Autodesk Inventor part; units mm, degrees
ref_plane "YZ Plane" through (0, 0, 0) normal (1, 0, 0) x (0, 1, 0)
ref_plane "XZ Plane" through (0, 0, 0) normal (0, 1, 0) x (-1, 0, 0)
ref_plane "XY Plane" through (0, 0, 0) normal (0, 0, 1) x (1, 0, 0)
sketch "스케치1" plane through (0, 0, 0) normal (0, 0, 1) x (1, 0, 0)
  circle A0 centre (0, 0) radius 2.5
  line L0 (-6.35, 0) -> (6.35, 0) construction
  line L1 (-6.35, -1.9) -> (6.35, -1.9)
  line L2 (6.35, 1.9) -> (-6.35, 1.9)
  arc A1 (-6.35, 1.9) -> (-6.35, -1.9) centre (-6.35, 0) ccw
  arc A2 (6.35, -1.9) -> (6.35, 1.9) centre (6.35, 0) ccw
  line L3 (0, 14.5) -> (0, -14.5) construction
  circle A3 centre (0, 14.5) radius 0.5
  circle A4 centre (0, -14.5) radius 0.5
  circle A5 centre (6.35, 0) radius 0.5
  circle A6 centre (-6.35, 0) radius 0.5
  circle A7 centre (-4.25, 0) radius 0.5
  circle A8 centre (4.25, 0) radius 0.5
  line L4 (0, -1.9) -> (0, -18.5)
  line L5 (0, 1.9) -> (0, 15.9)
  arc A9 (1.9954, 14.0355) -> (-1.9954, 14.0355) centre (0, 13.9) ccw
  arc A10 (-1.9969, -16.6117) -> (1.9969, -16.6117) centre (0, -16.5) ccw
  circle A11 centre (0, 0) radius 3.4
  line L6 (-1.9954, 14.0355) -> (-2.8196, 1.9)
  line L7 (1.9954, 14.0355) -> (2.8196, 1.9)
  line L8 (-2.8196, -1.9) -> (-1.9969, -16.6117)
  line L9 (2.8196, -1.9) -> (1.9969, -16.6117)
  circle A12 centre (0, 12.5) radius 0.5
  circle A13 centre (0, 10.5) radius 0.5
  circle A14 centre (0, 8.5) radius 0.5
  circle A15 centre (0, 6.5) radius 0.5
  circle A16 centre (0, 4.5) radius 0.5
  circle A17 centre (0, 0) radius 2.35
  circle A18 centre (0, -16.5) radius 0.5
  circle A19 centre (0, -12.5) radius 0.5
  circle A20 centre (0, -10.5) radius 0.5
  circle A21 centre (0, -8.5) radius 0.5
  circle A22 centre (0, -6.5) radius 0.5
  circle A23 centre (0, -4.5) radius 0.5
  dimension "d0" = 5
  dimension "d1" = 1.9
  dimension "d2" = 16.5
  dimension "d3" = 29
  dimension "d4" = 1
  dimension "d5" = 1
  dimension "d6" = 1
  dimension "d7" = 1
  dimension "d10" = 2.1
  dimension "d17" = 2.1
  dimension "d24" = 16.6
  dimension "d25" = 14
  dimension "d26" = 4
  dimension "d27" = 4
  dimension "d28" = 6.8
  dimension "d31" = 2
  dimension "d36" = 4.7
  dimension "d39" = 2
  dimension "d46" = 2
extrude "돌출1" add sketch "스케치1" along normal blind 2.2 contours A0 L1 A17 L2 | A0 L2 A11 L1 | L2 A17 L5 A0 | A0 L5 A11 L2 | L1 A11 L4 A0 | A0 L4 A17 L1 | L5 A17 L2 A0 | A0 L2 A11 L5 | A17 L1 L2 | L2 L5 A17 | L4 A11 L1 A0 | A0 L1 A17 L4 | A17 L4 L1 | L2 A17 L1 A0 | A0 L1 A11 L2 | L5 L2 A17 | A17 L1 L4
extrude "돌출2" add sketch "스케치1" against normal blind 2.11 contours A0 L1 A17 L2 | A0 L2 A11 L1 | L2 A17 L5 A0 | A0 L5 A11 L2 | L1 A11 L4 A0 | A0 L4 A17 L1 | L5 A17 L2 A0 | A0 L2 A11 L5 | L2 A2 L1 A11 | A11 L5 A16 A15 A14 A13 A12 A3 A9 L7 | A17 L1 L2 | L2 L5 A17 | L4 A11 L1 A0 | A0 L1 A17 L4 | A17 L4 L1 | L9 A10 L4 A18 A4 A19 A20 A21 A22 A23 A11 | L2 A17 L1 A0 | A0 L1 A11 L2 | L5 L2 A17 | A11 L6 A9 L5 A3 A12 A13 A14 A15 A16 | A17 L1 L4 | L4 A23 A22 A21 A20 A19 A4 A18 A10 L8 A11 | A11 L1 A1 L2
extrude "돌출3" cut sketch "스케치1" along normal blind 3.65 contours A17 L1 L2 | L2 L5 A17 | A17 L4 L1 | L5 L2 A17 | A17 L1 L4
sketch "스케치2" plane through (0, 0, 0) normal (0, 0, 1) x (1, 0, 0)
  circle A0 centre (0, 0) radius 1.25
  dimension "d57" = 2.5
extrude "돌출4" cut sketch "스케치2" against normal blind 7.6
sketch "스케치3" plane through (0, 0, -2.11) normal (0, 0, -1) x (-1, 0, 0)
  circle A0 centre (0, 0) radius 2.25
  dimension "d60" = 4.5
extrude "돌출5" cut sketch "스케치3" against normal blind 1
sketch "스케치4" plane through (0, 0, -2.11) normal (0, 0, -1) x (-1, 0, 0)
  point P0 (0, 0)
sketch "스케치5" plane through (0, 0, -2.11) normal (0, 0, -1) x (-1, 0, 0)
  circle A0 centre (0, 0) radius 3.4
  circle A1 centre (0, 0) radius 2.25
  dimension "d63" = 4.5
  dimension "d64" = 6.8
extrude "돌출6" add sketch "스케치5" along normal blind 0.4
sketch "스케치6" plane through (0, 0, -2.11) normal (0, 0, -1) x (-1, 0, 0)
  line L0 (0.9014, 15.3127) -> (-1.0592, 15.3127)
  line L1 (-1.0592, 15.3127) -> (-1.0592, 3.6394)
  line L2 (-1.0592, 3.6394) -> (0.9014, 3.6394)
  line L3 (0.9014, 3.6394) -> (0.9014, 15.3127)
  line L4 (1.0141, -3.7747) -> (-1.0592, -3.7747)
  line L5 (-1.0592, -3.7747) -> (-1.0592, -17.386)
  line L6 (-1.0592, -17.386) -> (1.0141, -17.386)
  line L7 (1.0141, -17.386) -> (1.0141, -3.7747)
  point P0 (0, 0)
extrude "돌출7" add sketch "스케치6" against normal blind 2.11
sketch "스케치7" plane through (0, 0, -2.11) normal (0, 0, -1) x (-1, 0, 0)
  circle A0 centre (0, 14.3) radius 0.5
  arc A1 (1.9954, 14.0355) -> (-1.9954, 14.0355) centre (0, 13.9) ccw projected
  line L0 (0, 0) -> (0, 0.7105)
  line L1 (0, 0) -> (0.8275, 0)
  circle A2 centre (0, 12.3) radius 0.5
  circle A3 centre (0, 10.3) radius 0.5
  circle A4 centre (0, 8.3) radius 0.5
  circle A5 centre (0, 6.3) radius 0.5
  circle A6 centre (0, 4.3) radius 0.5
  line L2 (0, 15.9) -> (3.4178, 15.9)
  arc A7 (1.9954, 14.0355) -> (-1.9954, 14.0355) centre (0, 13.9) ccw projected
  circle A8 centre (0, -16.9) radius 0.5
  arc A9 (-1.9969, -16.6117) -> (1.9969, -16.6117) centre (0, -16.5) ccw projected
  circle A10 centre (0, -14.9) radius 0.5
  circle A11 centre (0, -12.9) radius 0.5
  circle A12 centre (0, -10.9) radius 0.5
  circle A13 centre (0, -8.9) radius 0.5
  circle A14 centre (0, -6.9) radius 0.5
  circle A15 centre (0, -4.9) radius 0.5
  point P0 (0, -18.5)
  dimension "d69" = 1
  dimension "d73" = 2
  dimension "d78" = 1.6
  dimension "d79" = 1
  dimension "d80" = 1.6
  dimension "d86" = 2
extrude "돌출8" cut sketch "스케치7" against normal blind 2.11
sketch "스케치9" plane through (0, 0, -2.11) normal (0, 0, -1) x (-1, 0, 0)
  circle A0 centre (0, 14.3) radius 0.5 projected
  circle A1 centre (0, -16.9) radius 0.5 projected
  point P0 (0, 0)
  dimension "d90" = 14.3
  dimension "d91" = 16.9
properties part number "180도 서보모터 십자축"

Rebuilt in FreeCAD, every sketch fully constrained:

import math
import FreeCAD as App
import Part
import Sketcher
Q = App.Units.Quantity

doc = App.newDocument("Part")
params = doc.addObject("Spreadsheet::Sheet", "Params")
for row, (alias, value) in enumerate([
    ("sketch1_diameter", "6.8 mm"),
    ("pad1_length", "2.2 mm"),
    ("sketch2_diameter", "1 mm"),
    ("sketch2_radius", "2 mm"),
    ("sketch2_radius2", "1.9 mm"),
    ("pad2_length", "2.11 mm"),
    ("sketch3_diameter", "4.7 mm"),
    ("pocket1_length", "3.65 mm"),
    ("sketch4_diameter", "2.5 mm"),
    ("pocket2_length", "7.6 mm"),
    ("sketch5_diameter", "4.5 mm"),
    ("pocket3_length", "1 mm"),
    ("sketch6_diameter", "6.8 mm"),
    ("sketch6_diameter2", "4.5 mm"),
    ("pad3_length", "0.4 mm"),
    ("pad4_length", "2.11 mm"),
    ("sketch8_diameter", "1 mm"),
    ("pocket4_length", "2.11 mm"),
], start=1):
    params.set(f"A{row}", alias)
    params.set(f"B{row}", "=" + value)
    params.setAlias(f"B{row}", alias)

body = doc.addObject("PartDesign::Body", "Body")

# Sketch on XY plane
sketch1 = body.newObject("Sketcher::SketchObject", "Sketch")
sketch1.AttachmentSupport = (doc.getObject("XY_Plane"), [""])
sketch1.MapMode = "FlatFace"
sketch1.addGeometry(Part.Circle(App.Vector(0, 0, 0), App.Vector(0, 0, 1), 3.4), False)
sketch1.addConstraint([
    Sketcher.Constraint("Coincident", 0, 3, -1, 1),
    Sketcher.Constraint("Diameter", 0, Q("6.8 mm")),
])
sketch1.setExpression("Constraints[1]", "Params.sketch1_diameter")
pad1 = body.newObject("PartDesign::Pad", "Pad")
pad1.Profile = sketch1
pad1.setExpression("Length", "Params.pad1_length")

# Sketch on XY plane
sketch2 = body.newObject("Sketcher::SketchObject", "Sketch001")
sketch2.AttachmentSupport = (doc.getObject("XY_Plane"), [""])
sketch2.MapMode = "FlatFace"
sketch2.addGeometry([
    Part.LineSegment(App.Vector(6.35, 1.9, 0), App.Vector(2.8196, 1.9, 0)),  # 0
    Part.LineSegment(App.Vector(2.8196, 1.9, 0), App.Vector(1.9954, 14.0355, 0)),  # 1
    Part.ArcOfCircle(Part.Circle(App.Vector(0, 13.9, 0), App.Vector(0, 0, 1), 1.999995), math.radians(3.884774), math.radians(176.115226)),  # 2
    Part.LineSegment(App.Vector(-1.9954, 14.0355, 0), App.Vector(-2.8196, 1.9, 0)),  # 3
    Part.LineSegment(App.Vector(-2.8196, 1.9, 0), App.Vector(-6.35, 1.9, 0)),  # 4
    Part.ArcOfCircle(Part.Circle(App.Vector(-6.35, 0, 0), App.Vector(0, 0, 1), 1.9), math.radians(90), math.radians(270)),  # 5
    Part.LineSegment(App.Vector(-6.35, -1.9, 0), App.Vector(-2.8196, -1.9, 0)),  # 6
    Part.LineSegment(App.Vector(-2.8196, -1.9, 0), App.Vector(-1.9969, -16.6117, 0)),  # 7
    Part.ArcOfCircle(Part.Circle(App.Vector(0, -16.5, 0), App.Vector(0, 0, 1), 2.000022), math.radians(-176.798399), math.radians(-3.201601)),  # 8
    Part.LineSegment(App.Vector(1.9969, -16.6117, 0), App.Vector(2.8196, -1.9, 0)),  # 9
    Part.LineSegment(App.Vector(2.8196, -1.9, 0), App.Vector(6.35, -1.9, 0)),  # 10
    Part.ArcOfCircle(Part.Circle(App.Vector(6.35, 0, 0), App.Vector(0, 0, 1), 1.9), math.radians(-90), math.radians(90)),  # 11
    Part.Circle(App.Vector(4.25, 0, 0), App.Vector(0, 0, 1), 0.5),  # 12
    Part.Circle(App.Vector(6.35, 0, 0), App.Vector(0, 0, 1), 0.5),  # 13
    Part.Circle(App.Vector(0, -16.5, 0), App.Vector(0, 0, 1), 0.5),  # 14
    Part.Circle(App.Vector(0, -14.5, 0), App.Vector(0, 0, 1), 0.5),  # 15
    Part.Circle(App.Vector(0, -12.5, 0), App.Vector(0, 0, 1), 0.5),  # 16
    Part.Circle(App.Vector(0, -10.5, 0), App.Vector(0, 0, 1), 0.5),  # 17
    Part.Circle(App.Vector(0, -8.5, 0), App.Vector(0, 0, 1), 0.5),  # 18
    Part.Circle(App.Vector(0, -6.5, 0), App.Vector(0, 0, 1), 0.5),  # 19
    Part.Circle(App.Vector(0, -4.5, 0), App.Vector(0, 0, 1), 0.5),  # 20
    Part.Circle(App.Vector(0, 4.5, 0), App.Vector(0, 0, 1), 0.5),  # 21
    Part.Circle(App.Vector(0, 6.5, 0), App.Vector(0, 0, 1), 0.5),  # 22
    Part.Circle(App.Vector(0, 8.5, 0), App.Vector(0, 0, 1), 0.5),  # 23
    Part.Circle(App.Vector(0, 10.5, 0), App.Vector(0, 0, 1), 0.5),  # 24
    Part.Circle(App.Vector(0, 12.5, 0), App.Vector(0, 0, 1), 0.5),  # 25
    Part.Circle(App.Vector(0, 14.5, 0), App.Vector(0, 0, 1), 0.5),  # 26
    Part.Circle(App.Vector(-4.25, 0, 0), App.Vector(0, 0, 1), 0.5),  # 27
    Part.Circle(App.Vector(-6.35, 0, 0), App.Vector(0, 0, 1), 0.5),  # 28
], False)
sketch2.addConstraint([
    Sketcher.Constraint("Coincident", 0, 2, 1, 1),
    Sketcher.Constraint("Tangent", 1, 2, 2, 1),
    Sketcher.Constraint("Tangent", 2, 2, 3, 1),
    Sketcher.Constraint("Coincident", 3, 2, 4, 1),
    Sketcher.Constraint("Tangent", 4, 2, 5, 1),
    Sketcher.Constraint("Tangent", 5, 2, 6, 1),
    Sketcher.Constraint("Coincident", 6, 2, 7, 1),
    Sketcher.Constraint("Tangent", 7, 2, 8, 1),
    Sketcher.Constraint("Tangent", 8, 2, 9, 1),
    Sketcher.Constraint("Coincident", 9, 2, 10, 1),
    Sketcher.Constraint("Tangent", 10, 2, 11, 1),
    Sketcher.Constraint("Tangent", 11, 2, 0, 1),
    Sketcher.Constraint("Horizontal", 0),
    Sketcher.Constraint("Horizontal", 4),
    Sketcher.Constraint("Horizontal", 6),
    Sketcher.Constraint("Horizontal", 10),
    Sketcher.Constraint("Coincident", 13, 3, 11, 3),
    Sketcher.Constraint("Coincident", 14, 3, 8, 3),
    Sketcher.Constraint("Coincident", 28, 3, 5, 3),
    Sketcher.Constraint("Equal", 2, 8),
    Sketcher.Constraint("Equal", 5, 11),
    Sketcher.Constraint("Equal", 12, 13),
    Sketcher.Constraint("Equal", 13, 14),
    Sketcher.Constraint("Equal", 14, 15),
    Sketcher.Constraint("Equal", 15, 16),
    Sketcher.Constraint("Equal", 16, 17),
    Sketcher.Constraint("Equal", 17, 18),
    Sketcher.Constraint("Equal", 18, 19),
    Sketcher.Constraint("Equal", 19, 20),
    Sketcher.Constraint("Equal", 20, 21),
    Sketcher.Constraint("Equal", 21, 22),
    Sketcher.Constraint("Equal", 22, 23),
    Sketcher.Constraint("Equal", 23, 24),
    Sketcher.Constraint("Equal", 24, 25),
    Sketcher.Constraint("Equal", 25, 26),
    Sketcher.Constraint("Equal", 26, 27),
    Sketcher.Constraint("Equal", 27, 28),
    Sketcher.Constraint("Symmetric", 5, 3, 11, 3, -1, 1),
    Sketcher.Constraint("Symmetric", 20, 3, 21, 3, -1, 1),
    Sketcher.Constraint("Symmetric", 19, 3, 22, 3, -1, 1),
    Sketcher.Constraint("Symmetric", 18, 3, 23, 3, -1, 1),
    Sketcher.Constraint("Symmetric", 17, 3, 24, 3, -1, 1),
    Sketcher.Constraint("Symmetric", 16, 3, 25, 3, -1, 1),
    Sketcher.Constraint("Symmetric", 15, 3, 26, 3, -1, 1),
    Sketcher.Constraint("Symmetric", 12, 3, 27, 3, -1, 1),
    Sketcher.Constraint("Symmetric", 1, 2, 2, 2, -2),
    Sketcher.Constraint("Symmetric", 7, 2, 8, 2, -2),
    Sketcher.Constraint("Symmetric", 3, 2, 6, 2, -1),
    Sketcher.Constraint("PointOnObject", 12, 3, -1),
    Sketcher.Constraint("PointOnObject", 15, 3, -2),
    Sketcher.Constraint("PointOnObject", 16, 3, -2),
    Sketcher.Constraint("PointOnObject", 17, 3, -2),
    Sketcher.Constraint("PointOnObject", 18, 3, -2),
    Sketcher.Constraint("PointOnObject", 19, 3, -2),
    Sketcher.Constraint("PointOnObject", 20, 3, -2),
    Sketcher.Constraint("Diameter", 12, Q("1 mm")),
    Sketcher.Constraint("Radius", 2, Q("2 mm")),
    Sketcher.Constraint("Radius", 5, Q("1.9 mm")),
    Sketcher.Constraint("DistanceY", 8, 3, 15, 3, Q("2 mm")),
    Sketcher.Constraint("DistanceY", 15, 3, 16, 3, Q("2 mm")),
    Sketcher.Constraint("DistanceY", 16, 3, 17, 3, Q("2 mm")),
    Sketcher.Constraint("DistanceY", 17, 3, 18, 3, Q("2 mm")),
    Sketcher.Constraint("DistanceY", 18, 3, 19, 3, Q("2 mm")),
    Sketcher.Constraint("DistanceY", 19, 3, 20, 3, Q("2 mm")),
    Sketcher.Constraint("DistanceY", 8, 3, -1, 1, Q("16.5 mm")),
    Sketcher.Constraint("DistanceX", 12, 3, 11, 3, Q("2.1 mm")),
    Sketcher.Constraint("Angle", 7, Q("-86.7993 deg")),
    Sketcher.Constraint("DistanceY", -1, 1, 2, 3, Q("13.9 mm")),
    Sketcher.Constraint("DistanceX", 5, 3, 11, 3, Q("12.7 mm")),
])
sketch2.setExpression("Constraints[55]", "Params.sketch2_diameter")
sketch2.setExpression("Constraints[56]", "Params.sketch2_radius")
sketch2.setExpression("Constraints[57]", "Params.sketch2_radius2")
pad2 = body.newObject("PartDesign::Pad", "Pad001")
pad2.Profile = sketch2
pad2.setExpression("Length", "Params.pad2_length")
pad2.Reversed = True

# Sketch on XY plane
sketch3 = body.newObject("Sketcher::SketchObject", "Sketch002")
sketch3.AttachmentSupport = (doc.getObject("XY_Plane"), [""])
sketch3.MapMode = "FlatFace"
sketch3.addGeometry(Part.Circle(App.Vector(0, 0, 0), App.Vector(0, 0, 1), 2.35), False)
sketch3.addConstraint([
    Sketcher.Constraint("Coincident", 0, 3, -1, 1),
    Sketcher.Constraint("Diameter", 0, Q("4.7 mm")),
])
sketch3.setExpression("Constraints[1]", "Params.sketch3_diameter")
pocket1 = body.newObject("PartDesign::Pocket", "Pocket")
pocket1.Profile = sketch3
pocket1.setExpression("Length", "Params.pocket1_length")
pocket1.Reversed = True

# Sketch on XY plane
sketch4 = body.newObject("Sketcher::SketchObject", "Sketch003")
sketch4.AttachmentSupport = (doc.getObject("XY_Plane"), [""])
sketch4.MapMode = "FlatFace"
sketch4.addGeometry(Part.Circle(App.Vector(0, 0, 0), App.Vector(0, 0, 1), 1.25), False)
sketch4.addConstraint([
    Sketcher.Constraint("Coincident", 0, 3, -1, 1),
    Sketcher.Constraint("Diameter", 0, Q("2.5 mm")),
])
sketch4.setExpression("Constraints[1]", "Params.sketch4_diameter")
pocket2 = body.newObject("PartDesign::Pocket", "Pocket001")
pocket2.Profile = sketch4
pocket2.setExpression("Length", "Params.pocket2_length")

# Sketch on XY plane
sketch5 = body.newObject("Sketcher::SketchObject", "Sketch004")
sketch5.AttachmentSupport = (doc.getObject("XY_Plane"), [""])
sketch5.MapMode = "FlatFace"
sketch5.AttachmentOffset = App.Placement(App.Vector(0, 0, -2.11), App.Rotation())
sketch5.addGeometry(Part.Circle(App.Vector(0, 0, 0), App.Vector(0, 0, 1), 2.25), False)
sketch5.addConstraint([
    Sketcher.Constraint("Coincident", 0, 3, -1, 1),
    Sketcher.Constraint("Diameter", 0, Q("4.5 mm")),
])
sketch5.setExpression("Constraints[1]", "Params.sketch5_diameter")
pocket3 = body.newObject("PartDesign::Pocket", "Pocket002")
pocket3.Profile = sketch5
pocket3.setExpression("Length", "Params.pocket3_length")
pocket3.Reversed = True

# Sketch on XY plane
sketch6 = body.newObject("Sketcher::SketchObject", "Sketch005")
sketch6.AttachmentSupport = (doc.getObject("XY_Plane"), [""])
sketch6.MapMode = "FlatFace"
sketch6.AttachmentOffset = App.Placement(App.Vector(0, 0, -2.11), App.Rotation())
sketch6.addGeometry([
    Part.Circle(App.Vector(0, 0, 0), App.Vector(0, 0, 1), 3.4),
    Part.Circle(App.Vector(0, 0, 0), App.Vector(0, 0, 1), 2.25),
], False)
sketch6.addConstraint([
    Sketcher.Constraint("Coincident", 0, 3, -1, 1),
    Sketcher.Constraint("Coincident", 1, 3, -1, 1),
    Sketcher.Constraint("Diameter", 0, Q("6.8 mm")),
    Sketcher.Constraint("Diameter", 1, Q("4.5 mm")),
])
sketch6.setExpression("Constraints[2]", "Params.sketch6_diameter")
sketch6.setExpression("Constraints[3]", "Params.sketch6_diameter2")
pad3 = body.newObject("PartDesign::Pad", "Pad002")
pad3.Profile = sketch6
pad3.setExpression("Length", "Params.pad3_length")
pad3.Reversed = True

# Sketch on XY plane
sketch7 = body.newObject("Sketcher::SketchObject", "Sketch006")
sketch7.AttachmentSupport = (doc.getObject("XY_Plane"), [""])
sketch7.MapMode = "FlatFace"
sketch7.AttachmentOffset = App.Placement(App.Vector(0, 0, -2.11), App.Rotation())
sketch7.addGeometry([
    Part.LineSegment(App.Vector(-0.9014, 3.6394, 0), App.Vector(-0.9014, 15.3127, 0)),  # 0
    Part.LineSegment(App.Vector(-0.9014, 15.3127, 0), App.Vector(1.0592, 15.3127, 0)),  # 1
    Part.LineSegment(App.Vector(1.0592, 15.3127, 0), App.Vector(1.0592, 3.6394, 0)),  # 2
    Part.LineSegment(App.Vector(1.0592, 3.6394, 0), App.Vector(-0.9014, 3.6394, 0)),  # 3
    Part.LineSegment(App.Vector(-1.0141, -17.386, 0), App.Vector(-1.0141, -3.7747, 0)),  # 4
    Part.LineSegment(App.Vector(-1.0141, -3.7747, 0), App.Vector(1.0592, -3.7747, 0)),  # 5
    Part.LineSegment(App.Vector(1.0592, -3.7747, 0), App.Vector(1.0592, -17.386, 0)),  # 6
    Part.LineSegment(App.Vector(1.0592, -17.386, 0), App.Vector(-1.0141, -17.386, 0)),  # 7
], False)
sketch7.addConstraint([
    Sketcher.Constraint("Coincident", 0, 2, 1, 1),
    Sketcher.Constraint("Coincident", 1, 2, 2, 1),
    Sketcher.Constraint("Coincident", 2, 2, 3, 1),
    Sketcher.Constraint("Coincident", 3, 2, 0, 1),
    Sketcher.Constraint("Coincident", 4, 2, 5, 1),
    Sketcher.Constraint("Coincident", 5, 2, 6, 1),
    Sketcher.Constraint("Coincident", 6, 2, 7, 1),
    Sketcher.Constraint("Coincident", 7, 2, 4, 1),
    Sketcher.Constraint("Vertical", 0),
    Sketcher.Constraint("Horizontal", 1),
    Sketcher.Constraint("Vertical", 2),
    Sketcher.Constraint("Horizontal", 3),
    Sketcher.Constraint("Vertical", 4),
    Sketcher.Constraint("Horizontal", 5),
    Sketcher.Constraint("Vertical", 6),
    Sketcher.Constraint("Horizontal", 7),
    Sketcher.Constraint("Vertical", 2, 2, 5, 2),
    Sketcher.Constraint("DistanceX", 1, 1, 1, 2, Q("1.9606 mm")),
    Sketcher.Constraint("DistanceX", 5, 1, 5, 2, Q("2.0733 mm")),
    Sketcher.Constraint("DistanceY", 0, 1, 0, 2, Q("11.6733 mm")),
    Sketcher.Constraint("DistanceY", 4, 1, 4, 2, Q("13.6113 mm")),
    Sketcher.Constraint("DistanceX", 4, 2, -1, 1, Q("1.014 mm")),
    Sketcher.Constraint("DistanceY", 6, 2, -1, 1, Q("17.386 mm")),
    Sketcher.Constraint("DistanceY", 4, 2, 3, 2, Q("7.414 mm")),
])
pad4 = body.newObject("PartDesign::Pad", "Pad003")
pad4.Profile = sketch7
pad4.setExpression("Length", "Params.pad4_length")

# Sketch on XY plane
sketch8 = body.newObject("Sketcher::SketchObject", "Sketch007")
sketch8.AttachmentSupport = (doc.getObject("XY_Plane"), [""])
sketch8.MapMode = "FlatFace"
sketch8.AttachmentOffset = App.Placement(App.Vector(0, 0, -2.11), App.Rotation())
sketch8.addGeometry([
    Part.Circle(App.Vector(0, 14.3, 0), App.Vector(0, 0, 1), 0.5),  # 0
    Part.Circle(App.Vector(0, 12.3, 0), App.Vector(0, 0, 1), 0.5),  # 1
    Part.Circle(App.Vector(0, 10.3, 0), App.Vector(0, 0, 1), 0.5),  # 2
    Part.Circle(App.Vector(0, 8.3, 0), App.Vector(0, 0, 1), 0.5),  # 3
    Part.Circle(App.Vector(0, 6.3, 0), App.Vector(0, 0, 1), 0.5),  # 4
    Part.Circle(App.Vector(0, 4.3, 0), App.Vector(0, 0, 1), 0.5),  # 5
    Part.Circle(App.Vector(0, -16.9, 0), App.Vector(0, 0, 1), 0.5),  # 6
    Part.Circle(App.Vector(0, -14.9, 0), App.Vector(0, 0, 1), 0.5),  # 7
    Part.Circle(App.Vector(0, -12.9, 0), App.Vector(0, 0, 1), 0.5),  # 8
    Part.Circle(App.Vector(0, -10.9, 0), App.Vector(0, 0, 1), 0.5),  # 9
    Part.Circle(App.Vector(0, -8.9, 0), App.Vector(0, 0, 1), 0.5),  # 10
    Part.Circle(App.Vector(0, -6.9, 0), App.Vector(0, 0, 1), 0.5),  # 11
    Part.Circle(App.Vector(0, -4.9, 0), App.Vector(0, 0, 1), 0.5),  # 12
], False)
sketch8.addConstraint([
    Sketcher.Constraint("Equal", 0, 1),
    Sketcher.Constraint("Equal", 1, 2),
    Sketcher.Constraint("Equal", 2, 3),
    Sketcher.Constraint("Equal", 3, 4),
    Sketcher.Constraint("Equal", 4, 5),
    Sketcher.Constraint("Equal", 5, 6),
    Sketcher.Constraint("Equal", 6, 7),
    Sketcher.Constraint("Equal", 7, 8),
    Sketcher.Constraint("Equal", 8, 9),
    Sketcher.Constraint("Equal", 9, 10),
    Sketcher.Constraint("Equal", 10, 11),
    Sketcher.Constraint("Equal", 11, 12),
    Sketcher.Constraint("PointOnObject", 0, 3, -2),
    Sketcher.Constraint("PointOnObject", 1, 3, -2),
    Sketcher.Constraint("PointOnObject", 2, 3, -2),
    Sketcher.Constraint("PointOnObject", 3, 3, -2),
    Sketcher.Constraint("PointOnObject", 4, 3, -2),
    Sketcher.Constraint("PointOnObject", 5, 3, -2),
    Sketcher.Constraint("PointOnObject", 6, 3, -2),
    Sketcher.Constraint("PointOnObject", 7, 3, -2),
    Sketcher.Constraint("PointOnObject", 8, 3, -2),
    Sketcher.Constraint("PointOnObject", 9, 3, -2),
    Sketcher.Constraint("PointOnObject", 10, 3, -2),
    Sketcher.Constraint("PointOnObject", 11, 3, -2),
    Sketcher.Constraint("PointOnObject", 12, 3, -2),
    Sketcher.Constraint("Diameter", 0, Q("1 mm")),
    Sketcher.Constraint("DistanceY", 1, 3, 0, 3, Q("2 mm")),
    Sketcher.Constraint("DistanceY", 2, 3, 1, 3, Q("2 mm")),
    Sketcher.Constraint("DistanceY", 3, 3, 2, 3, Q("2 mm")),
    Sketcher.Constraint("DistanceY", 4, 3, 3, 3, Q("2 mm")),
    Sketcher.Constraint("DistanceY", 5, 3, 4, 3, Q("2 mm")),
    Sketcher.Constraint("DistanceY", 6, 3, 7, 3, Q("2 mm")),
    Sketcher.Constraint("DistanceY", 7, 3, 8, 3, Q("2 mm")),
    Sketcher.Constraint("DistanceY", 8, 3, 9, 3, Q("2 mm")),
    Sketcher.Constraint("DistanceY", 9, 3, 10, 3, Q("2 mm")),
    Sketcher.Constraint("DistanceY", 10, 3, 11, 3, Q("2 mm")),
    Sketcher.Constraint("DistanceY", 11, 3, 12, 3, Q("2 mm")),
    Sketcher.Constraint("DistanceY", -1, 1, 0, 3, Q("14.3 mm")),
    Sketcher.Constraint("DistanceY", 6, 3, -1, 1, Q("16.9 mm")),
])
sketch8.setExpression("Constraints[25]", "Params.sketch8_diameter")
pocket4 = body.newObject("PartDesign::Pocket", "Pocket003")
pocket4.Profile = sketch8
pocket4.setExpression("Length", "Params.pocket4_length")
pocket4.Reversed = True

doc.recompute()
